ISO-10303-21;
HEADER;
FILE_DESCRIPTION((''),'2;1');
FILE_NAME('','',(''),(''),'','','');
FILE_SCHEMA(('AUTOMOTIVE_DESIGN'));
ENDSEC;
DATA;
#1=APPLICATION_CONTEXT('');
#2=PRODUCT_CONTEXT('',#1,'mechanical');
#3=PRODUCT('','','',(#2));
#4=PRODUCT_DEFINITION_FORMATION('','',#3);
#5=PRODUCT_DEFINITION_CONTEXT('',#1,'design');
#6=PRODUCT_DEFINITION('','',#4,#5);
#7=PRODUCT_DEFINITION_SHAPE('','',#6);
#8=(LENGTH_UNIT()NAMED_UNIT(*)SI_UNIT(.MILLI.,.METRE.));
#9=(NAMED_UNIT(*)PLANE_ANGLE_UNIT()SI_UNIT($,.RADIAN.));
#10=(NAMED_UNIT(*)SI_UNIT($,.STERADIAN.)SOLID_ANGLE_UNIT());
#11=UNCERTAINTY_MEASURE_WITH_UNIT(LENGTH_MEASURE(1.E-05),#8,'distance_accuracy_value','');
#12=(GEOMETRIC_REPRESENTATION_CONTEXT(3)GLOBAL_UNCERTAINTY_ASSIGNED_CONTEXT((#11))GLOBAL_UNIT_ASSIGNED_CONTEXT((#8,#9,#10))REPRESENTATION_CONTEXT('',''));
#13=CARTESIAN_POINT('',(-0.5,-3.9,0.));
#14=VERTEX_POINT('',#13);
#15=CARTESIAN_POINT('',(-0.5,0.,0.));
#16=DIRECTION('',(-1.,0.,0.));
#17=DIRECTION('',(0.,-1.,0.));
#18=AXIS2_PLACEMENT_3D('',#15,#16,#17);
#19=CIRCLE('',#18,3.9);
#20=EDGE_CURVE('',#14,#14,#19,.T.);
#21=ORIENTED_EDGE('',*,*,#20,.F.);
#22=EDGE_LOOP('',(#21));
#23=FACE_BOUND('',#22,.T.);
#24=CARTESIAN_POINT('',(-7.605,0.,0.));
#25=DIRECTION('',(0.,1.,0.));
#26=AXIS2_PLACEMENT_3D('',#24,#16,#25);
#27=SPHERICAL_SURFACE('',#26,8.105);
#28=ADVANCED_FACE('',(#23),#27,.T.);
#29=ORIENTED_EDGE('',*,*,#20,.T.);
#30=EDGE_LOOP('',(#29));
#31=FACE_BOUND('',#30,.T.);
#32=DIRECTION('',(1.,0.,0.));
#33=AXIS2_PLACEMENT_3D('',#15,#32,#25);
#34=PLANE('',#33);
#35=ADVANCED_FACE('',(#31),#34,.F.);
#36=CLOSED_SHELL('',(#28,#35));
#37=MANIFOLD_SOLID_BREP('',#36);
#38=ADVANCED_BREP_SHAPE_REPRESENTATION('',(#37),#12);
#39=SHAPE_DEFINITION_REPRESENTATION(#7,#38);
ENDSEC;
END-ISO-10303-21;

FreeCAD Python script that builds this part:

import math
import FreeCAD as App
import Part
import Sketcher
Q = App.Units.Quantity

doc = App.newDocument("Part")
body = doc.addObject("PartDesign::Body", "Body")

# Sketch on XY plane
sketch1 = body.newObject("Sketcher::SketchObject", "Sketch")
sketch1.AttachmentSupport = (doc.getObject("XY_Plane"), [""])
sketch1.MapMode = "FlatFace"
sketch1.addGeometry([
    Part.LineSegment(App.Vector(-0.5, 0, 0), App.Vector(0.5, 0, 0)),
    Part.ArcOfCircle(Part.Circle(App.Vector(-7.605, 0, 0), App.Vector(0, 0, 1), 8.105), math.radians(0), math.radians(28.762789)),
    Part.LineSegment(App.Vector(-0.5, 3.9, 0), App.Vector(-0.5, 0, 0)),
], False)
sketch1.addConstraint([
    Sketcher.Constraint("Coincident", 0, 2, 1, 1),
    Sketcher.Constraint("Coincident", 1, 2, 2, 1),
    Sketcher.Constraint("Coincident", 2, 2, 0, 1),
    Sketcher.Constraint("Horizontal", 0),
    Sketcher.Constraint("Vertical", 2),
    Sketcher.Constraint("Symmetric", 0, 2, 2, 2, -1, 1),
    Sketcher.Constraint("PointOnObject", 1, 3, -1),
    Sketcher.Constraint("DistanceX", 0, 1, 0, 2, Q("1 mm")),
    Sketcher.Constraint("DistanceY", 2, 2, 2, 1, Q("3.9 mm")),
])
revolution = body.newObject("PartDesign::Revolution", "Revolution")
revolution.Profile = sketch1
revolution.ReferenceAxis = (sketch1, ["H_Axis"])
revolution.Angle = 360

doc.recompute()
